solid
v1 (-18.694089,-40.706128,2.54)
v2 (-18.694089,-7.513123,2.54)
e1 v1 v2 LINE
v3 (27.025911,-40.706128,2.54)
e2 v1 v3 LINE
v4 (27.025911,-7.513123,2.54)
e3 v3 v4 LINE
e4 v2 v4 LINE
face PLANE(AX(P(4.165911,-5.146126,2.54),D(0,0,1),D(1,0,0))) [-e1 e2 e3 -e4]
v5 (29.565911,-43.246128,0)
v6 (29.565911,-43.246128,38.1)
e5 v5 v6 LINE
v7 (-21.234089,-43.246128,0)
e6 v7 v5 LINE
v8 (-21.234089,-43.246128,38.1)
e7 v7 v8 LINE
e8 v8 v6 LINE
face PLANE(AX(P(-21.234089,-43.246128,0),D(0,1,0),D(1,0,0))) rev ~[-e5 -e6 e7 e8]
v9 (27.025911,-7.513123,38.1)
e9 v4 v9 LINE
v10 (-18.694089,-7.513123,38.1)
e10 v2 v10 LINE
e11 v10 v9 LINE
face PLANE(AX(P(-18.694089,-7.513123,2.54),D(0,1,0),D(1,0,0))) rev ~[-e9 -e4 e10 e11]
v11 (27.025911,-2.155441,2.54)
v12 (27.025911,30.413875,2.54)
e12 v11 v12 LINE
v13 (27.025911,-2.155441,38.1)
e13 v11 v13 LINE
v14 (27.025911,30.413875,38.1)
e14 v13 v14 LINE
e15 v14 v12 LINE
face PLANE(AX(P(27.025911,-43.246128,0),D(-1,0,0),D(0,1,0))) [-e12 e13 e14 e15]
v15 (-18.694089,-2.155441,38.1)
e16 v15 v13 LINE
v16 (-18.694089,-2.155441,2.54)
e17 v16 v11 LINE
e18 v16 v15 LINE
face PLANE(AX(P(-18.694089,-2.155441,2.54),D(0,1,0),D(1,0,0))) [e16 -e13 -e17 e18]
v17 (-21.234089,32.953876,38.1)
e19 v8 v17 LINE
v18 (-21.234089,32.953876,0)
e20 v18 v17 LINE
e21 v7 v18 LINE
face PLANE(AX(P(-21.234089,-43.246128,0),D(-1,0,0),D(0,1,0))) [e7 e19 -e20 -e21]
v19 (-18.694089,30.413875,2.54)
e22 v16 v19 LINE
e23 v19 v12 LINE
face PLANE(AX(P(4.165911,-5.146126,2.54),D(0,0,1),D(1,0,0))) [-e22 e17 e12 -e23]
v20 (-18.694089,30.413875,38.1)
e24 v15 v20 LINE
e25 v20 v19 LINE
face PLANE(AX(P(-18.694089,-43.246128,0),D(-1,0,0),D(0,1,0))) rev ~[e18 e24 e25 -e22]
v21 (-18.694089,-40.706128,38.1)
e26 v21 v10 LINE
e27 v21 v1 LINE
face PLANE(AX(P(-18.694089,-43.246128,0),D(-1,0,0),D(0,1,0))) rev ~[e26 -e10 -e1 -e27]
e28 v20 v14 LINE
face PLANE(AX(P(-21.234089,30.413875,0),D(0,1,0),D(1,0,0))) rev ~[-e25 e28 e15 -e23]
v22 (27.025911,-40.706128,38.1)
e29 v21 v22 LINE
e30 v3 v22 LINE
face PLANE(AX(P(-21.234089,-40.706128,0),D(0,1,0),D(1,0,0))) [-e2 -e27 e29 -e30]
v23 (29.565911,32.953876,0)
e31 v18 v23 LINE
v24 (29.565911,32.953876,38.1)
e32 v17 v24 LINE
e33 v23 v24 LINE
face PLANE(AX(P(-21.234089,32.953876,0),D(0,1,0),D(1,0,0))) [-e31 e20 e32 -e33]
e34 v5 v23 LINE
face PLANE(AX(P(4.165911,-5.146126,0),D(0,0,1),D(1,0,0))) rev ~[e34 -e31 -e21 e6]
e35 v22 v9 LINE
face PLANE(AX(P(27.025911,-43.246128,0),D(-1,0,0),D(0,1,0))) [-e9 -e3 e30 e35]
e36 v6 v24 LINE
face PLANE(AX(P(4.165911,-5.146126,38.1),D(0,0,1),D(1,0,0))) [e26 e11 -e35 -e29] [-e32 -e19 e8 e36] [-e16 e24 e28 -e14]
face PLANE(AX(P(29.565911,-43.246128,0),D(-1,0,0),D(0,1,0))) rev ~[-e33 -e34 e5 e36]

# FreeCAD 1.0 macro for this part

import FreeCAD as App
import Part
import Sketcher

V = App.Vector
Q = App.Units.Quantity


def faces_at(feature, points):
    """Names of the faces that lie closest to the given points."""
    faces = feature.Shape.Faces
    near = lambda p: min(range(len(faces)), key=lambda i: faces[i].distToShape(Part.Vertex(*p))[0])
    return sorted({f"Face{near(p) + 1}" for p in points})

doc = App.newDocument("Part")
params = doc.addObject("Spreadsheet::Sheet", "Params")
for row, (alias, value) in enumerate([
    ("sketch1_width", "2 in"),
    ("sketch1_height", "3.0000001 in"),
    ("pad1_length", "1.5 in"),
    ("thickness_wall", "0.1 in"),
    ("sketch2_width", "1.8 in"),
    ("pad2_length", "1.4 in"),
], start=1):
    params.set(f"A{row}", alias)
    params.set(f"B{row}", "=" + value)
    params.setAlias(f"B{row}", alias)

body = doc.addObject("PartDesign::Body", "Body")

# Sketch on XY plane
sketch1 = body.newObject("Sketcher::SketchObject", "Sketch")
sketch1.AttachmentSupport = (doc.getObject("XY_Plane"), [""])
sketch1.MapMode = "FlatFace"
sketch1.addGeometry(Part.LineSegment(V(-21.234089, 32.953876, 0), V(-21.234089, -43.246128, 0)), False)
sketch1.addGeometry(Part.LineSegment(V(-21.234089, -43.246128, 0), V(29.565911, -43.246128, 0)), False)
sketch1.addGeometry(Part.LineSegment(V(29.565911, -43.246128, 0), V(29.565911, 32.953876, 0)), False)
sketch1.addGeometry(Part.LineSegment(V(29.565911, 32.953876, 0), V(-21.234089, 32.953876, 0)), False)
sketch1.addConstraint(Sketcher.Constraint("Coincident", 0, 2, 1, 1))
sketch1.addConstraint(Sketcher.Constraint("Coincident", 1, 2, 2, 1))
sketch1.addConstraint(Sketcher.Constraint("Coincident", 2, 2, 3, 1))
sketch1.addConstraint(Sketcher.Constraint("Coincident", 3, 2, 0, 1))
sketch1.addConstraint(Sketcher.Constraint("Vertical", 0))
sketch1.addConstraint(Sketcher.Constraint("Horizontal", 1))
sketch1.addConstraint(Sketcher.Constraint("Vertical", 2))
sketch1.addConstraint(Sketcher.Constraint("Horizontal", 3))
sketch1.addConstraint(Sketcher.Constraint("DistanceX", 1, 1, 1, 2, Q("2 in")))
sketch1.addConstraint(Sketcher.Constraint("DistanceY", 0, 2, 0, 1, Q("3.0000001 in")))
sketch1.addConstraint(Sketcher.Constraint("DistanceX", 0, 2, -1, 1, Q("21.234089 mm")))
sketch1.addConstraint(Sketcher.Constraint("DistanceY", 0, 2, -1, 1, Q("43.246128 mm")))
sketch1.setExpression("Constraints[8]", "Params.sketch1_width")
sketch1.setExpression("Constraints[9]", "Params.sketch1_height")
pad1 = body.newObject("PartDesign::Pad", "Pad")
pad1.Profile = sketch1
pad1.setExpression("Length", "Params.pad1_length")
doc.recompute()

thickness = body.newObject("PartDesign::Thickness", "Thickness")
thickness.Base = (pad1, faces_at(pad1, [(4.166, -5.146, 38.1)]))
thickness.setExpression("Value", "Params.thickness_wall")
thickness.Reversed = True
thickness.Join = "Arc"

# Sketch on XY plane
sketch2 = body.newObject("Sketcher::SketchObject", "Sketch001")
sketch2.AttachmentSupport = (doc.getObject("XY_Plane"), [""])
sketch2.MapMode = "FlatFace"
sketch2.AttachmentOffset = App.Placement(V(0, 0, 0.1 * 25.4), App.Rotation())
sketch2.addGeometry(Part.LineSegment(V(-18.694089, -2.155441, 0), V(-18.694089, -7.513123, 0)), False)
sketch2.addGeometry(Part.LineSegment(V(-18.694089, -7.513123, 0), V(27.025911, -7.513123, 0)), False)
sketch2.addGeometry(Part.LineSegment(V(27.025911, -7.513123, 0), V(27.025911, -2.155441, 0)), False)
sketch2.addGeometry(Part.LineSegment(V(27.025911, -2.155441, 0), V(-18.694089, -2.155441, 0)), False)
sketch2.addConstraint(Sketcher.Constraint("Coincident", 0, 2, 1, 1))
sketch2.addConstraint(Sketcher.Constraint("Coincident", 1, 2, 2, 1))
sketch2.addConstraint(Sketcher.Constraint("Coincident", 2, 2, 3, 1))
sketch2.addConstraint(Sketcher.Constraint("Coincident", 3, 2, 0, 1))
sketch2.addConstraint(Sketcher.Constraint("Vertical", 0))
sketch2.addConstraint(Sketcher.Constraint("Horizontal", 1))
sketch2.addConstraint(Sketcher.Constraint("Vertical", 2))
sketch2.addConstraint(Sketcher.Constraint("Horizontal", 3))
sketch2.addConstraint(Sketcher.Constraint("DistanceX", 1, 1, 1, 2, Q("1.8 in")))
sketch2.addConstraint(Sketcher.Constraint("DistanceY", 0, 2, 0, 1, Q("5.357682 mm")))
sketch2.addConstraint(Sketcher.Constraint("DistanceX", 0, 2, -1, 1, Q("18.694089 mm")))
sketch2.addConstraint(Sketcher.Constraint("DistanceY", 2, 2, -1, 1, Q("2.155441 mm")))
sketch2.setExpression("Constraints[8]", "Params.sketch2_width")
pad2 = body.newObject("PartDesign::Pad", "Pad001")
pad2.Profile = sketch2
pad2.setExpression("Length", "Params.pad2_length")

doc.recompute()
